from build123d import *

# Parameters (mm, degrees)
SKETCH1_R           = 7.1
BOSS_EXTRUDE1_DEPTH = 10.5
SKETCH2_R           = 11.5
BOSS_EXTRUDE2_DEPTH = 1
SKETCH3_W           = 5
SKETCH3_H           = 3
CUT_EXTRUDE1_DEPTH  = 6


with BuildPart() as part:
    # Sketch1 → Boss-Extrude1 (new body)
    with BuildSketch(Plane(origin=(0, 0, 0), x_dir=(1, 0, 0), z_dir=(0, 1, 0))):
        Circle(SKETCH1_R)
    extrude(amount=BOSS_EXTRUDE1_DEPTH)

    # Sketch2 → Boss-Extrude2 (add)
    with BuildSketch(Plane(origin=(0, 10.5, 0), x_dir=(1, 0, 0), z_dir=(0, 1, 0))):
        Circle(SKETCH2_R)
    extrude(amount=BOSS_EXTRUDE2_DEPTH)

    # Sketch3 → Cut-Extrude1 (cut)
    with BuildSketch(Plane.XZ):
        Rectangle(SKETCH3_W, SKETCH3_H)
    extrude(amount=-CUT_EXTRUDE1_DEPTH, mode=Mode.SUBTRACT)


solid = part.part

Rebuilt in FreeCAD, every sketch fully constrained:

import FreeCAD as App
import Part
import Sketcher


def add_polygon(sketch, points):
    """Adds a closed chain of lines whose ends are joined by coincident constraints."""
    first, n = sketch.GeometryCount, len(points)
    for a, b in zip(points, points[1:] + points[:1]):
        sketch.addGeometry(Part.LineSegment(App.Vector(*a, 0), App.Vector(*b, 0)), False)
    for i in range(n):
        sketch.addConstraint(Sketcher.Constraint("Coincident", first + i, 2, first + (i + 1) % n, 1))

doc = App.newDocument("Part")
body = doc.addObject("PartDesign::Body", "Body")

sketch1 = doc.addObject("Sketcher::SketchObject", "Sketch")
body.addObject(sketch1)
sketch1.AttachmentSupport = (doc.XZ_Plane, [""])
sketch1.MapMode = "FlatFace"
sketch1.addGeometry(Part.Circle(App.Vector(0, 0, 0), App.Vector(0, 0, 1), 7), False)
sketch1.addConstraint([
    Sketcher.Constraint("Coincident", 0, 3, -1, 1),
    Sketcher.Constraint("Diameter", 0, 14.2),
])
pad1 = doc.addObject("PartDesign::Pad", "Pad")
body.addObject(pad1)
pad1.Profile = sketch1
pad1.Length = 10.5
pad1.Reversed = True

sketch2 = doc.addObject("Sketcher::SketchObject", "Sketch001")
body.addObject(sketch2)
sketch2.AttachmentSupport = (doc.XZ_Plane, [""])
sketch2.MapMode = "FlatFace"
sketch2.AttachmentOffset = App.Placement(App.Vector(0, 0, -10.5), App.Rotation())
sketch2.addGeometry(Part.Circle(App.Vector(0, 0, 0), App.Vector(0, 0, 1), 12), False)
sketch2.addConstraint([
    Sketcher.Constraint("Coincident", 0, 3, -1, 1),
    Sketcher.Constraint("Diameter", 0, 23.0),
])
pad2 = doc.addObject("PartDesign::Pad", "Pad001")
body.addObject(pad2)
pad2.Profile = sketch2
pad2.Length = 1
pad2.Reversed = True

sketch3 = doc.addObject("Sketcher::SketchObject", "Sketch002")
body.addObject(sketch3)
sketch3.AttachmentSupport = (doc.XZ_Plane, [""])
sketch3.MapMode = "FlatFace"
add_polygon(sketch3, [(-2.5, 1.5), (-2.5, -1.5), (2.5, -1.5), (2.5, 1.5)])
sketch3.addConstraint([
    Sketcher.Constraint("Vertical", 0),
    Sketcher.Constraint("Horizontal", 1),
    Sketcher.Constraint("Vertical", 2),
    Sketcher.Constraint("Horizontal", 3),
    Sketcher.Constraint("Symmetric", 0, 2, 2, 2, -1, 1),
    Sketcher.Constraint("DistanceX", 1, 1, 1, 2, 5.0),
    Sketcher.Constraint("DistanceY", 0, 2, 0, 1, 3.0),
])
pocket1 = doc.addObject("PartDesign::Pocket", "Pocket")
body.addObject(pocket1)
pocket1.Profile = sketch3
pocket1.Length = 6

doc.recompute()
